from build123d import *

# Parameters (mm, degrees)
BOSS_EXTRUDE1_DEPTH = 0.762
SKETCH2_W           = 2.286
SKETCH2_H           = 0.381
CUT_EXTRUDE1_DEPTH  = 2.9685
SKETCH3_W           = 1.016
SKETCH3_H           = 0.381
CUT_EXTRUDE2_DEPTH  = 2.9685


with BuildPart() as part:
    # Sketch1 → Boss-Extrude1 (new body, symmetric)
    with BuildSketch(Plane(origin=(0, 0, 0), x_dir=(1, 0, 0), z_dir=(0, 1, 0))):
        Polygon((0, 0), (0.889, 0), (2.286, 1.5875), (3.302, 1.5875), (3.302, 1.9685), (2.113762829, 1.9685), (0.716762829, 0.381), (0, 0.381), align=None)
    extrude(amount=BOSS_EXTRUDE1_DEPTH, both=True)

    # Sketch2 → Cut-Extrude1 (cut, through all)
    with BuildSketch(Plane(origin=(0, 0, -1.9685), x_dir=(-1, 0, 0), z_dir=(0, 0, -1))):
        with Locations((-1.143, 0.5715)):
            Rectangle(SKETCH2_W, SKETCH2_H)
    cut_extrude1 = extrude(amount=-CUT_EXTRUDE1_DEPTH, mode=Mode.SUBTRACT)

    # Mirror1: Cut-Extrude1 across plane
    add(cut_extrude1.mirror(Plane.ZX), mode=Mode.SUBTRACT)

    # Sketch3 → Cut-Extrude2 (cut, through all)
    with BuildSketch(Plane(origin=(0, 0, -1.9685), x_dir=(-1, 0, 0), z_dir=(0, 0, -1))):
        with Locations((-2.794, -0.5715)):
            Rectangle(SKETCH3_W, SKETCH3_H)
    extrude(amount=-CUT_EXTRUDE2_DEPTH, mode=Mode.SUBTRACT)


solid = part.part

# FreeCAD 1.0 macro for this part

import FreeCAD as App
import Part
import Sketcher
Q = App.Units.Quantity


def add_polygon(sketch, points):
    """Adds a closed chain of lines whose ends are joined by coincident constraints."""
    first, n = sketch.GeometryCount, len(points)
    for a, b in zip(points, points[1:] + points[:1]):
        sketch.addGeometry(Part.LineSegment(App.Vector(*a, 0), App.Vector(*b, 0)), False)
    for i in range(n):
        sketch.addConstraint(Sketcher.Constraint("Coincident", first + i, 2, first + (i + 1) % n, 1))

doc = App.newDocument("Part")
body = doc.addObject("PartDesign::Body", "Body")

sketch1 = body.newObject("Sketcher::SketchObject", "Sketch")
sketch1.AttachmentSupport = (doc.getObject("XZ_Plane"), [""])
sketch1.MapMode = "FlatFace"
add_polygon(sketch1, [(0, 0), (0.889, 0), (2.286, -1.5875), (3.302, -1.5875), (3.302, -1.9685), (2.113763, -1.9685), (0.716763, -0.381), (0, -0.381)])
sketch1.addConstraint(Sketcher.Constraint("Horizontal", 0))
sketch1.addConstraint(Sketcher.Constraint("Horizontal", 2))
sketch1.addConstraint(Sketcher.Constraint("Vertical", 3))
sketch1.addConstraint(Sketcher.Constraint("Horizontal", 4))
sketch1.addConstraint(Sketcher.Constraint("Horizontal", 6))
sketch1.addConstraint(Sketcher.Constraint("Vertical", 7))
sketch1.addConstraint(Sketcher.Constraint("Coincident", 7, 2, -1, 1))
sketch1.addConstraint(Sketcher.Constraint("Parallel", 1, 5))
sketch1.addConstraint(Sketcher.Constraint("Equal", 3, 7))
sketch1.addConstraint(Sketcher.Constraint("DistanceX", 2, 1, 2, 2, Q("0.04 in")))
sketch1.addConstraint(Sketcher.Constraint("DistanceX", 0, 1, 0, 2, Q("0.035 in")))
sketch1.addConstraint(Sketcher.Constraint("DistanceY", 3, 2, 3, 1, Q("0.015 in")))
sketch1.addConstraint(Sketcher.Constraint("DistanceX", -1, 1, 1, 2, Q("0.09 in")))
sketch1.addConstraint(Sketcher.Constraint("DistanceY", 1, 2, -1, 1, Q("0.0625 in")))
sketch1.addConstraint(Sketcher.Constraint("DistanceX", 4, 2, 4, 1, 1.188237))
pad1 = body.newObject("PartDesign::Pad", "Pad")
pad1.Profile = sketch1
pad1.Length = Q("0.06 in")
pad1.Midplane = True

sketch2 = body.newObject("Sketcher::SketchObject", "Sketch001")
sketch2.AttachmentSupport = (doc.getObject("XY_Plane"), [""])
sketch2.MapMode = "FlatFace"
sketch2.AttachmentOffset = App.Placement(App.Vector(0, 0, -0.0775 * 25.4), App.Rotation())
add_polygon(sketch2, [(2.286, 0.762), (2.286, 0.381), (0, 0.381), (0, 0.762)])
sketch2.addConstraint(Sketcher.Constraint("Vertical", 0))
sketch2.addConstraint(Sketcher.Constraint("Horizontal", 1))
sketch2.addConstraint(Sketcher.Constraint("Vertical", 2))
sketch2.addConstraint(Sketcher.Constraint("Horizontal", 3))
sketch2.addConstraint(Sketcher.Constraint("PointOnObject", 1, 2, -2))
sketch2.addConstraint(Sketcher.Constraint("DistanceX", 1, 2, 1, 1, Q("0.09 in")))
sketch2.addConstraint(Sketcher.Constraint("DistanceY", 0, 2, 0, 1, Q("0.015 in")))
sketch2.addConstraint(Sketcher.Constraint("DistanceY", -1, 1, 2, 2, Q("0.03 in")))
pocket1 = body.newObject("PartDesign::Pocket", "Pocket")
pocket1.Profile = sketch2
pocket1.Type = "ThroughAll"
pocket1.Reversed = True
doc.recompute()

mirrored = body.newObject("PartDesign::Mirrored", "Mirrored")
mirrored.Originals = [pocket1]
mirrored.MirrorPlane = (doc.getObject("XZ_Plane"), [""])
body.Tip = mirrored

sketch3 = body.newObject("Sketcher::SketchObject", "Sketch002")
sketch3.AttachmentSupport = (doc.getObject("XY_Plane"), [""])
sketch3.MapMode = "FlatFace"
sketch3.AttachmentOffset = App.Placement(App.Vector(0, 0, -0.0775 * 25.4), App.Rotation())
add_polygon(sketch3, [(3.302, -0.381), (3.302, -0.762), (2.286, -0.762), (2.286, -0.381)])
sketch3.addConstraint(Sketcher.Constraint("Vertical", 0))
sketch3.addConstraint(Sketcher.Constraint("Horizontal", 1))
sketch3.addConstraint(Sketcher.Constraint("Vertical", 2))
sketch3.addConstraint(Sketcher.Constraint("Horizontal", 3))
sketch3.addConstraint(Sketcher.Constraint("DistanceX", 1, 2, 1, 1, Q("0.04 in")))
sketch3.addConstraint(Sketcher.Constraint("DistanceY", 0, 2, 0, 1, Q("0.015 in")))
sketch3.addConstraint(Sketcher.Constraint("DistanceX", -1, 1, 0, 2, Q("0.13 in")))
sketch3.addConstraint(Sketcher.Constraint("DistanceY", 0, 2, -1, 1, Q("0.03 in")))
pocket2 = body.newObject("PartDesign::Pocket", "Pocket001")
pocket2.Profile = sketch3
pocket2.Type = "ThroughAll"
pocket2.Reversed = True

doc.recompute()
